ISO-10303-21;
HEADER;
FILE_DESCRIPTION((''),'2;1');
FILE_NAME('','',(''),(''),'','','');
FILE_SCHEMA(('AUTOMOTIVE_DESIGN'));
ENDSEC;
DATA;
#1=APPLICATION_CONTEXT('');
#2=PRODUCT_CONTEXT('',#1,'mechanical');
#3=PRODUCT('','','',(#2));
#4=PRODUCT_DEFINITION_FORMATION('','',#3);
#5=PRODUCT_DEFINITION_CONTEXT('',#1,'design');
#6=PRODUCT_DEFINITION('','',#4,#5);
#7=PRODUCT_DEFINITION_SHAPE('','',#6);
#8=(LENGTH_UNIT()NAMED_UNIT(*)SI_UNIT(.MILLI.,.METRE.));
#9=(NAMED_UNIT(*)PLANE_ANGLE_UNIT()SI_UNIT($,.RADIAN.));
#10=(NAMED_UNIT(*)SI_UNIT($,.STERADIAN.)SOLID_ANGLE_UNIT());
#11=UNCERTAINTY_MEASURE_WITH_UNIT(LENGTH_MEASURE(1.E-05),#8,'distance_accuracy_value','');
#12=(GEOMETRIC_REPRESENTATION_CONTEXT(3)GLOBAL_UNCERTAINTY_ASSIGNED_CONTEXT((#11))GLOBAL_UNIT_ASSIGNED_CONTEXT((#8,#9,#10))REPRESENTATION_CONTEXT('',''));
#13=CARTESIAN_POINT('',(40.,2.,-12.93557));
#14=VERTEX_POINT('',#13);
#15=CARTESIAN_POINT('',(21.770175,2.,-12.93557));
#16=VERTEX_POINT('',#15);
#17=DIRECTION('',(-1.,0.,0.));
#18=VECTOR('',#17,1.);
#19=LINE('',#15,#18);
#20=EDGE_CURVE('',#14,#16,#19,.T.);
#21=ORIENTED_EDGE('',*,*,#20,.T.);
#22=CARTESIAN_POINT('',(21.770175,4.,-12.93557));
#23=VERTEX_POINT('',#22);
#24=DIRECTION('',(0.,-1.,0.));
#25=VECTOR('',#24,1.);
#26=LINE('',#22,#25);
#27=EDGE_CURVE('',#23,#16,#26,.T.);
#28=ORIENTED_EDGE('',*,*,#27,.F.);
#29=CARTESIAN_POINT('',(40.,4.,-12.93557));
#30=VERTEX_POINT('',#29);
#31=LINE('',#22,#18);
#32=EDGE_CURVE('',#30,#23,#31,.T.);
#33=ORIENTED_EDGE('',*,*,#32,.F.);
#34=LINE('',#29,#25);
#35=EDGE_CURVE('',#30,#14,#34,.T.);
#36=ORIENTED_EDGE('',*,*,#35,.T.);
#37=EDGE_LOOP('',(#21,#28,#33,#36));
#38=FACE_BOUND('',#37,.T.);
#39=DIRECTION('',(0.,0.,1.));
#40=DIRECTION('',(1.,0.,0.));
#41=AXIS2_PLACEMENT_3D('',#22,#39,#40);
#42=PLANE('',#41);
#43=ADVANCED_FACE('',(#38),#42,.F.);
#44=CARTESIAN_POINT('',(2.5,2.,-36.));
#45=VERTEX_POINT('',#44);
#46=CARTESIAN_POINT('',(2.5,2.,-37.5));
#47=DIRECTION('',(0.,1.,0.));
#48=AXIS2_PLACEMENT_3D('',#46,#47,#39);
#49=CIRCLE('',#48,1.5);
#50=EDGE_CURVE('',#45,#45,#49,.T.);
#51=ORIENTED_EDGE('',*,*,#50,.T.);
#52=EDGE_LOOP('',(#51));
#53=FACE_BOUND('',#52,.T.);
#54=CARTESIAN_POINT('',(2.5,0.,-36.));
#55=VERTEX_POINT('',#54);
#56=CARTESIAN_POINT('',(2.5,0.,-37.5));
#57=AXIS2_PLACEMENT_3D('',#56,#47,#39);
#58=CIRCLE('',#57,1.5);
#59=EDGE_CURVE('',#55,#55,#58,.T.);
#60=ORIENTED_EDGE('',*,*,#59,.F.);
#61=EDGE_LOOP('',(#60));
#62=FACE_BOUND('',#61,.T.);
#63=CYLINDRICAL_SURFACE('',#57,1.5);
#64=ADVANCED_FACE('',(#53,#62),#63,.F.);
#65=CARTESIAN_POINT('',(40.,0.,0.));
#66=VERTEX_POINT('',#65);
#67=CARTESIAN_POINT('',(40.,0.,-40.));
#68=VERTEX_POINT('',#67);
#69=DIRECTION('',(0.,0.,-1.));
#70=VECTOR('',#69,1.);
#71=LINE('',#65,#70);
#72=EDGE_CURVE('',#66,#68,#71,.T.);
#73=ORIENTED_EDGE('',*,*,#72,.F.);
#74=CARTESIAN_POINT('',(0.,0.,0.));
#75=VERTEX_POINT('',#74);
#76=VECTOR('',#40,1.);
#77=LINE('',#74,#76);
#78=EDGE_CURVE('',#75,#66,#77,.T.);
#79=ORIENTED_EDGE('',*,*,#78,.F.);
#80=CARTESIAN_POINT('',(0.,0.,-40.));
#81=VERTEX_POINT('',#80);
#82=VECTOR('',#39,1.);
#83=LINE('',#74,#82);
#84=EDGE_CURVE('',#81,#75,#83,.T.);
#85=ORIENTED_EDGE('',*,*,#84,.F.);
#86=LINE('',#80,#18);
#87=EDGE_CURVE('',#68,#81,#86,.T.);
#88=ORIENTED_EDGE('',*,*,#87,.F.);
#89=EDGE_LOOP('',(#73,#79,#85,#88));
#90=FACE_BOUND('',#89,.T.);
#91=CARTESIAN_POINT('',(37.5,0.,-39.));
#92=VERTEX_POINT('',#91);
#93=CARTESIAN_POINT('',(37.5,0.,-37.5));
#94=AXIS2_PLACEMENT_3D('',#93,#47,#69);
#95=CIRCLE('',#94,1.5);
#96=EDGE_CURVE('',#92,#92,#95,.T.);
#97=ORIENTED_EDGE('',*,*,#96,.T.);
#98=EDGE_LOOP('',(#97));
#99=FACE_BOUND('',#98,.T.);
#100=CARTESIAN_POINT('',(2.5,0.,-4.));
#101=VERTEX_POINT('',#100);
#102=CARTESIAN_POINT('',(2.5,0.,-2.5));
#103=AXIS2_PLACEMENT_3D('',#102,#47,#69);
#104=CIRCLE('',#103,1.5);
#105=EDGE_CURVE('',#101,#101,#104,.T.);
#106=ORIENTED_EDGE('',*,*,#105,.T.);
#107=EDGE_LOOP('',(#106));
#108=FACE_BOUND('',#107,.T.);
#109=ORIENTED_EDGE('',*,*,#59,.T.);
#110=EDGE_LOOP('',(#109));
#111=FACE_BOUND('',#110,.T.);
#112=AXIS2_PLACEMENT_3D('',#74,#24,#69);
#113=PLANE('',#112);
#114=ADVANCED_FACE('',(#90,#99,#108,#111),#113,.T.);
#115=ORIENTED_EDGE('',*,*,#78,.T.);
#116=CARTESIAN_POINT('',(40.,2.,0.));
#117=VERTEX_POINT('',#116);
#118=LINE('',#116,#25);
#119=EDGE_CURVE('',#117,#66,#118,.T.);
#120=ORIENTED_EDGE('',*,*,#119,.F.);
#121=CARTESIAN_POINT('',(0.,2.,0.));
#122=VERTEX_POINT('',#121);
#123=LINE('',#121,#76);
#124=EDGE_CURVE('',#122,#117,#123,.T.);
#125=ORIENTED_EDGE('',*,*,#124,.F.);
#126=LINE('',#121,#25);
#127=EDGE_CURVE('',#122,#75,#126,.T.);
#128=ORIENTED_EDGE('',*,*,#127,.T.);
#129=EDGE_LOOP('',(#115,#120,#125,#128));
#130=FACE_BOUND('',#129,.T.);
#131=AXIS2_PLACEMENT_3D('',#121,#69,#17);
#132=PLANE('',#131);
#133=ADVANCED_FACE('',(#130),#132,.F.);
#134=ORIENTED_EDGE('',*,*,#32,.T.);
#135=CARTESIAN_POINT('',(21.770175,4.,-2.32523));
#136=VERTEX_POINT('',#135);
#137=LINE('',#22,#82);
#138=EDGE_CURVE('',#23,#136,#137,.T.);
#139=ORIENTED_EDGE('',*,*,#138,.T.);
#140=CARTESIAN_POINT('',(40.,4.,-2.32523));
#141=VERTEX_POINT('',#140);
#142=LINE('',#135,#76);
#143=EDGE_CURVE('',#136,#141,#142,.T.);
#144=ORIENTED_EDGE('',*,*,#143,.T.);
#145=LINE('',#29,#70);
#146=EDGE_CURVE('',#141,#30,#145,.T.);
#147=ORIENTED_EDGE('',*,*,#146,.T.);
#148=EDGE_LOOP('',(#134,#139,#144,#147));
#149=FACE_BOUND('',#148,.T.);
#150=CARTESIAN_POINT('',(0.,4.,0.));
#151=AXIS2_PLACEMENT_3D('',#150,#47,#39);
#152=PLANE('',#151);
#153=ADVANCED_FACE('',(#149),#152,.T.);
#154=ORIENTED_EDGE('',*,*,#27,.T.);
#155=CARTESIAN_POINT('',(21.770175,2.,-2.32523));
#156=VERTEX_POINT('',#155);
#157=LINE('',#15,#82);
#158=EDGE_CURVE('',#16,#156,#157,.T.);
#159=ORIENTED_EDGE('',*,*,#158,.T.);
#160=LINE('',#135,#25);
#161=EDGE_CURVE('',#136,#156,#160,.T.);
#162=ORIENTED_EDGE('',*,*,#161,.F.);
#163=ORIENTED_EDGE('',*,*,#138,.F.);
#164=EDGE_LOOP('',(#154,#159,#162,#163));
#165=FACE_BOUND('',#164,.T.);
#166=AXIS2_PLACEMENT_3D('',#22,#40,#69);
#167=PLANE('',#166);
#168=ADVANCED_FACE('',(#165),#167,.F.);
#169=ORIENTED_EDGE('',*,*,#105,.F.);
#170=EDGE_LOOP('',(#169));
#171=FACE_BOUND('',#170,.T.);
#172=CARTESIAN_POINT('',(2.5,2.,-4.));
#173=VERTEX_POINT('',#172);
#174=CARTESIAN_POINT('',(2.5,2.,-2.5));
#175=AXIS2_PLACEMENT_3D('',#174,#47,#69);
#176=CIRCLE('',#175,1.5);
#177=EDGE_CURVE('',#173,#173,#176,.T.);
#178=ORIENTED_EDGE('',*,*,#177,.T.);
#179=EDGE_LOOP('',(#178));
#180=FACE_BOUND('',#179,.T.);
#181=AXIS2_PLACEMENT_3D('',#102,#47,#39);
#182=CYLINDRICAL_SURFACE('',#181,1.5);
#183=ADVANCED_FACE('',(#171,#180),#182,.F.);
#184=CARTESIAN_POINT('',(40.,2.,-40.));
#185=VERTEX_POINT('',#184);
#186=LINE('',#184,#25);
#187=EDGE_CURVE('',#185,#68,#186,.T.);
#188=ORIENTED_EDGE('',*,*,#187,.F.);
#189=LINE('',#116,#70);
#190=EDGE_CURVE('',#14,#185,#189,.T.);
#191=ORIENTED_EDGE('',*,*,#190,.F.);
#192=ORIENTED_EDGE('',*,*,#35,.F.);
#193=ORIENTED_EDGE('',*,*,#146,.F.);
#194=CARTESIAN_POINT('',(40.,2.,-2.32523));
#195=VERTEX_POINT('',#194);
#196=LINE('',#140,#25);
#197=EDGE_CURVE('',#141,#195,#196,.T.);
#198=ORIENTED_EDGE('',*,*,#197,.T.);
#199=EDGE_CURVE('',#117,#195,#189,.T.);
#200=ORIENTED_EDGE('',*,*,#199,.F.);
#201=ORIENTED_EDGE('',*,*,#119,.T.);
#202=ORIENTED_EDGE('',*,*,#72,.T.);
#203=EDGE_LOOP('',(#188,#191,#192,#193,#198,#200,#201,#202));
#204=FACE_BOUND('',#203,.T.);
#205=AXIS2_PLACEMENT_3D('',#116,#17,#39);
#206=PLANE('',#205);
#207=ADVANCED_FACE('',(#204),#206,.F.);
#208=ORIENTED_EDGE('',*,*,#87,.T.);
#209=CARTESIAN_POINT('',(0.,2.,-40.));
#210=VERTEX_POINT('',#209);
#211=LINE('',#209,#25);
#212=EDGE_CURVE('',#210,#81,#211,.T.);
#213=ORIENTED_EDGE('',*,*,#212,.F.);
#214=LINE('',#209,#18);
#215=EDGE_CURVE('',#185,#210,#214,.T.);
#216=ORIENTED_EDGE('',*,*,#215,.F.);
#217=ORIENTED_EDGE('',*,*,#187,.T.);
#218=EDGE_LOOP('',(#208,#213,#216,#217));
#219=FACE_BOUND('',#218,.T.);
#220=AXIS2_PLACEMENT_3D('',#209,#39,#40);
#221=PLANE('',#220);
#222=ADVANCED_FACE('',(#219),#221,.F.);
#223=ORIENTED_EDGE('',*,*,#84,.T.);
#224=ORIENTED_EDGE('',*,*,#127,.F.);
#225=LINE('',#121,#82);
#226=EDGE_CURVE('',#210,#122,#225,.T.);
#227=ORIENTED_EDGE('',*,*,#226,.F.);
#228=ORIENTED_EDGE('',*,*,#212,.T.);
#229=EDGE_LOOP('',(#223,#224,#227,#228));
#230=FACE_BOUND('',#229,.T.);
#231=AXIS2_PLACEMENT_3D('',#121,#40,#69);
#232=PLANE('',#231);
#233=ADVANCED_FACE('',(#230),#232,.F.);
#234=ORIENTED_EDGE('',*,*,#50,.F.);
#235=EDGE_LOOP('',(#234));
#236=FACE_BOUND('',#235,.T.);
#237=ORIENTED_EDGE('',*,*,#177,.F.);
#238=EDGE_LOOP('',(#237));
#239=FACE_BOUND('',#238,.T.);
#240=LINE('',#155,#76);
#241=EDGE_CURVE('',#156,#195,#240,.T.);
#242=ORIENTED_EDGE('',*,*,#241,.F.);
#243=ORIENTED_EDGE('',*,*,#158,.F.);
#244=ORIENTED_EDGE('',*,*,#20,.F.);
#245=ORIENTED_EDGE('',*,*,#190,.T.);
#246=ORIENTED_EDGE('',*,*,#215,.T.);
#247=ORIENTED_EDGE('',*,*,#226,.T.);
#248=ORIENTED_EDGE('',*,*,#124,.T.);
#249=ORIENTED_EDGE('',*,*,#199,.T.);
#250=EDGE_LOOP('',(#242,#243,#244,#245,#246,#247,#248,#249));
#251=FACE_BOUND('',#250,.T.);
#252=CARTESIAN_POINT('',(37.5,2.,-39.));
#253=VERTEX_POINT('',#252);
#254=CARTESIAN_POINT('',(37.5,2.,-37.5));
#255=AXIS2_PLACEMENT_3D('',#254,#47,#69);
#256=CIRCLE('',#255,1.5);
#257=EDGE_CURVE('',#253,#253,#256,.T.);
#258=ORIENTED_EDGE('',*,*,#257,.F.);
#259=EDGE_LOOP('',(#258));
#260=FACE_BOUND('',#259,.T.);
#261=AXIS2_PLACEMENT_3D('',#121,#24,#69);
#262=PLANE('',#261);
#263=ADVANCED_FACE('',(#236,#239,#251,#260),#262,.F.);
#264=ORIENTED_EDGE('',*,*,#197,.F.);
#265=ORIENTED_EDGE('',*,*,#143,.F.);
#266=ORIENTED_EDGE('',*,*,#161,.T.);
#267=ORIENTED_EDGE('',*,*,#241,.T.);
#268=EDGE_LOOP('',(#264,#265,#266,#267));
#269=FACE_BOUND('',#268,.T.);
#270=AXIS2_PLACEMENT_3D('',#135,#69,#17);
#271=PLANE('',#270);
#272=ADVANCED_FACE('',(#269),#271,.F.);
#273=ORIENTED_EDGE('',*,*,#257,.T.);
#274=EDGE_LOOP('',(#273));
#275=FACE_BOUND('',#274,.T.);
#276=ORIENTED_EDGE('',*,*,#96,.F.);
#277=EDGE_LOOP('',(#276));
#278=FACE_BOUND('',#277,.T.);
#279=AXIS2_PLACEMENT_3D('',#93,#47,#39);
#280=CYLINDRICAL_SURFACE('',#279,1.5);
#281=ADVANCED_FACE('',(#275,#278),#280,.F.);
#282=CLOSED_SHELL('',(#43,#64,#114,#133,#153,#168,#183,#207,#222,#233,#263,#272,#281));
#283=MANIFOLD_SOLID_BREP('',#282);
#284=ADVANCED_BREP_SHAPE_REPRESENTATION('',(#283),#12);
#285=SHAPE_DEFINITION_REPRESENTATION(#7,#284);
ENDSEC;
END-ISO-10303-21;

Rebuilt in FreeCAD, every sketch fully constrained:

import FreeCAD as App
import Part
import Sketcher


def add_polygon(sketch, points):
    """Adds a closed chain of lines whose ends are joined by coincident constraints."""
    first, n = sketch.GeometryCount, len(points)
    for a, b in zip(points, points[1:] + points[:1]):
        sketch.addGeometry(Part.LineSegment(App.Vector(*a, 0), App.Vector(*b, 0)), False)
    for i in range(n):
        sketch.addConstraint(Sketcher.Constraint("Coincident", first + i, 2, first + (i + 1) % n, 1))

doc = App.newDocument("Part")
body = doc.addObject("PartDesign::Body", "Body")

# Sketch on XZ plane
sketch1 = doc.addObject("Sketcher::SketchObject", "Sketch")
body.addObject(sketch1)
sketch1.AttachmentSupport = (doc.XZ_Plane, [""])
sketch1.MapMode = "FlatFace"
add_polygon(sketch1, [(0, -40), (0, 0), (40, 0), (40, -40)])  # lines 0-3
sketch1.addConstraint([
    Sketcher.Constraint("Vertical", 0),
    Sketcher.Constraint("Horizontal", 1),
    Sketcher.Constraint("Vertical", 2),
    Sketcher.Constraint("Horizontal", 3),
    Sketcher.Constraint("Coincident", 0, 2, -1, 1),
    Sketcher.Constraint("Equal", 3, 0),
    Sketcher.Constraint("DistanceX", 1, 1, 1, 2, 40.0),
])
pad1 = doc.addObject("PartDesign::Pad", "Pad")
body.addObject(pad1)
pad1.Profile = sketch1
pad1.Length = 2
pad1.Reversed = True

# Sketch on XZ plane
sketch2 = doc.addObject("Sketcher::SketchObject", "Sketch001")
body.addObject(sketch2)
sketch2.AttachmentSupport = (doc.XZ_Plane, [""])
sketch2.MapMode = "FlatFace"
sketch2.AttachmentOffset = App.Placement(App.Vector(0, 0, -2), App.Rotation())
sketch2.addGeometry([
    Part.Circle(App.Vector(2.5, -37.5, 0), App.Vector(0, 0, 1), 1.5),
    Part.Circle(App.Vector(37.5, -37.5, 0), App.Vector(0, 0, 1), 1.5),
    Part.Circle(App.Vector(2.5, -2.5, 0), App.Vector(0, 0, 1), 1.5),
], False)
sketch2.addConstraint([
    Sketcher.Constraint("Equal", 0, 1),
    Sketcher.Constraint("Equal", 1, 2),
    Sketcher.Constraint("Horizontal", 0, 3, 1, 3),
    Sketcher.Constraint("Vertical", 0, 3, 2, 3),
    Sketcher.Constraint("Diameter", 0, 3.0),
    Sketcher.Constraint("DistanceX", 0, 3, 1, 3, 35.0),
    Sketcher.Constraint("DistanceY", 0, 3, 2, 3, 35.0),
    Sketcher.Constraint("DistanceX", -1, 1, 0, 3, 2.5),
    Sketcher.Constraint("DistanceY", 0, 3, -1, 1, 37.5),
])
pocket1 = doc.addObject("PartDesign::Pocket", "Pocket")
body.addObject(pocket1)
pocket1.Profile = sketch2
pocket1.Type = "ThroughAll"
pocket1.Reversed = True

# Sketch on XZ plane
sketch3 = doc.addObject("Sketcher::SketchObject", "Sketch002")
body.addObject(sketch3)
sketch3.AttachmentSupport = (doc.XZ_Plane, [""])
sketch3.MapMode = "FlatFace"
sketch3.AttachmentOffset = App.Placement(App.Vector(0, 0, -2), App.Rotation())
add_polygon(sketch3, [(22, -13), (22, -2), (40, -2), (40, -13)])  # lines 0-3
sketch3.addConstraint([
    Sketcher.Constraint("Vertical", 0),
    Sketcher.Constraint("Horizontal", 1),
    Sketcher.Constraint("Vertical", 2),
    Sketcher.Constraint("Horizontal", 3),
    Sketcher.Constraint("DistanceX", -1, 1, 1, 2, 40.0),
    Sketcher.Constraint("DistanceY", 0, 1, 0, 2, 10.61034),
    Sketcher.Constraint("DistanceX", 1, 1, 1, 2, 18.229825),
    Sketcher.Constraint("DistanceY", 0, 2, -1, 1, 2.32523),
])
pad2 = doc.addObject("PartDesign::Pad", "Pad001")
body.addObject(pad2)
pad2.Profile = sketch3
pad2.Length = 2
pad2.Reversed = True

doc.recompute()
